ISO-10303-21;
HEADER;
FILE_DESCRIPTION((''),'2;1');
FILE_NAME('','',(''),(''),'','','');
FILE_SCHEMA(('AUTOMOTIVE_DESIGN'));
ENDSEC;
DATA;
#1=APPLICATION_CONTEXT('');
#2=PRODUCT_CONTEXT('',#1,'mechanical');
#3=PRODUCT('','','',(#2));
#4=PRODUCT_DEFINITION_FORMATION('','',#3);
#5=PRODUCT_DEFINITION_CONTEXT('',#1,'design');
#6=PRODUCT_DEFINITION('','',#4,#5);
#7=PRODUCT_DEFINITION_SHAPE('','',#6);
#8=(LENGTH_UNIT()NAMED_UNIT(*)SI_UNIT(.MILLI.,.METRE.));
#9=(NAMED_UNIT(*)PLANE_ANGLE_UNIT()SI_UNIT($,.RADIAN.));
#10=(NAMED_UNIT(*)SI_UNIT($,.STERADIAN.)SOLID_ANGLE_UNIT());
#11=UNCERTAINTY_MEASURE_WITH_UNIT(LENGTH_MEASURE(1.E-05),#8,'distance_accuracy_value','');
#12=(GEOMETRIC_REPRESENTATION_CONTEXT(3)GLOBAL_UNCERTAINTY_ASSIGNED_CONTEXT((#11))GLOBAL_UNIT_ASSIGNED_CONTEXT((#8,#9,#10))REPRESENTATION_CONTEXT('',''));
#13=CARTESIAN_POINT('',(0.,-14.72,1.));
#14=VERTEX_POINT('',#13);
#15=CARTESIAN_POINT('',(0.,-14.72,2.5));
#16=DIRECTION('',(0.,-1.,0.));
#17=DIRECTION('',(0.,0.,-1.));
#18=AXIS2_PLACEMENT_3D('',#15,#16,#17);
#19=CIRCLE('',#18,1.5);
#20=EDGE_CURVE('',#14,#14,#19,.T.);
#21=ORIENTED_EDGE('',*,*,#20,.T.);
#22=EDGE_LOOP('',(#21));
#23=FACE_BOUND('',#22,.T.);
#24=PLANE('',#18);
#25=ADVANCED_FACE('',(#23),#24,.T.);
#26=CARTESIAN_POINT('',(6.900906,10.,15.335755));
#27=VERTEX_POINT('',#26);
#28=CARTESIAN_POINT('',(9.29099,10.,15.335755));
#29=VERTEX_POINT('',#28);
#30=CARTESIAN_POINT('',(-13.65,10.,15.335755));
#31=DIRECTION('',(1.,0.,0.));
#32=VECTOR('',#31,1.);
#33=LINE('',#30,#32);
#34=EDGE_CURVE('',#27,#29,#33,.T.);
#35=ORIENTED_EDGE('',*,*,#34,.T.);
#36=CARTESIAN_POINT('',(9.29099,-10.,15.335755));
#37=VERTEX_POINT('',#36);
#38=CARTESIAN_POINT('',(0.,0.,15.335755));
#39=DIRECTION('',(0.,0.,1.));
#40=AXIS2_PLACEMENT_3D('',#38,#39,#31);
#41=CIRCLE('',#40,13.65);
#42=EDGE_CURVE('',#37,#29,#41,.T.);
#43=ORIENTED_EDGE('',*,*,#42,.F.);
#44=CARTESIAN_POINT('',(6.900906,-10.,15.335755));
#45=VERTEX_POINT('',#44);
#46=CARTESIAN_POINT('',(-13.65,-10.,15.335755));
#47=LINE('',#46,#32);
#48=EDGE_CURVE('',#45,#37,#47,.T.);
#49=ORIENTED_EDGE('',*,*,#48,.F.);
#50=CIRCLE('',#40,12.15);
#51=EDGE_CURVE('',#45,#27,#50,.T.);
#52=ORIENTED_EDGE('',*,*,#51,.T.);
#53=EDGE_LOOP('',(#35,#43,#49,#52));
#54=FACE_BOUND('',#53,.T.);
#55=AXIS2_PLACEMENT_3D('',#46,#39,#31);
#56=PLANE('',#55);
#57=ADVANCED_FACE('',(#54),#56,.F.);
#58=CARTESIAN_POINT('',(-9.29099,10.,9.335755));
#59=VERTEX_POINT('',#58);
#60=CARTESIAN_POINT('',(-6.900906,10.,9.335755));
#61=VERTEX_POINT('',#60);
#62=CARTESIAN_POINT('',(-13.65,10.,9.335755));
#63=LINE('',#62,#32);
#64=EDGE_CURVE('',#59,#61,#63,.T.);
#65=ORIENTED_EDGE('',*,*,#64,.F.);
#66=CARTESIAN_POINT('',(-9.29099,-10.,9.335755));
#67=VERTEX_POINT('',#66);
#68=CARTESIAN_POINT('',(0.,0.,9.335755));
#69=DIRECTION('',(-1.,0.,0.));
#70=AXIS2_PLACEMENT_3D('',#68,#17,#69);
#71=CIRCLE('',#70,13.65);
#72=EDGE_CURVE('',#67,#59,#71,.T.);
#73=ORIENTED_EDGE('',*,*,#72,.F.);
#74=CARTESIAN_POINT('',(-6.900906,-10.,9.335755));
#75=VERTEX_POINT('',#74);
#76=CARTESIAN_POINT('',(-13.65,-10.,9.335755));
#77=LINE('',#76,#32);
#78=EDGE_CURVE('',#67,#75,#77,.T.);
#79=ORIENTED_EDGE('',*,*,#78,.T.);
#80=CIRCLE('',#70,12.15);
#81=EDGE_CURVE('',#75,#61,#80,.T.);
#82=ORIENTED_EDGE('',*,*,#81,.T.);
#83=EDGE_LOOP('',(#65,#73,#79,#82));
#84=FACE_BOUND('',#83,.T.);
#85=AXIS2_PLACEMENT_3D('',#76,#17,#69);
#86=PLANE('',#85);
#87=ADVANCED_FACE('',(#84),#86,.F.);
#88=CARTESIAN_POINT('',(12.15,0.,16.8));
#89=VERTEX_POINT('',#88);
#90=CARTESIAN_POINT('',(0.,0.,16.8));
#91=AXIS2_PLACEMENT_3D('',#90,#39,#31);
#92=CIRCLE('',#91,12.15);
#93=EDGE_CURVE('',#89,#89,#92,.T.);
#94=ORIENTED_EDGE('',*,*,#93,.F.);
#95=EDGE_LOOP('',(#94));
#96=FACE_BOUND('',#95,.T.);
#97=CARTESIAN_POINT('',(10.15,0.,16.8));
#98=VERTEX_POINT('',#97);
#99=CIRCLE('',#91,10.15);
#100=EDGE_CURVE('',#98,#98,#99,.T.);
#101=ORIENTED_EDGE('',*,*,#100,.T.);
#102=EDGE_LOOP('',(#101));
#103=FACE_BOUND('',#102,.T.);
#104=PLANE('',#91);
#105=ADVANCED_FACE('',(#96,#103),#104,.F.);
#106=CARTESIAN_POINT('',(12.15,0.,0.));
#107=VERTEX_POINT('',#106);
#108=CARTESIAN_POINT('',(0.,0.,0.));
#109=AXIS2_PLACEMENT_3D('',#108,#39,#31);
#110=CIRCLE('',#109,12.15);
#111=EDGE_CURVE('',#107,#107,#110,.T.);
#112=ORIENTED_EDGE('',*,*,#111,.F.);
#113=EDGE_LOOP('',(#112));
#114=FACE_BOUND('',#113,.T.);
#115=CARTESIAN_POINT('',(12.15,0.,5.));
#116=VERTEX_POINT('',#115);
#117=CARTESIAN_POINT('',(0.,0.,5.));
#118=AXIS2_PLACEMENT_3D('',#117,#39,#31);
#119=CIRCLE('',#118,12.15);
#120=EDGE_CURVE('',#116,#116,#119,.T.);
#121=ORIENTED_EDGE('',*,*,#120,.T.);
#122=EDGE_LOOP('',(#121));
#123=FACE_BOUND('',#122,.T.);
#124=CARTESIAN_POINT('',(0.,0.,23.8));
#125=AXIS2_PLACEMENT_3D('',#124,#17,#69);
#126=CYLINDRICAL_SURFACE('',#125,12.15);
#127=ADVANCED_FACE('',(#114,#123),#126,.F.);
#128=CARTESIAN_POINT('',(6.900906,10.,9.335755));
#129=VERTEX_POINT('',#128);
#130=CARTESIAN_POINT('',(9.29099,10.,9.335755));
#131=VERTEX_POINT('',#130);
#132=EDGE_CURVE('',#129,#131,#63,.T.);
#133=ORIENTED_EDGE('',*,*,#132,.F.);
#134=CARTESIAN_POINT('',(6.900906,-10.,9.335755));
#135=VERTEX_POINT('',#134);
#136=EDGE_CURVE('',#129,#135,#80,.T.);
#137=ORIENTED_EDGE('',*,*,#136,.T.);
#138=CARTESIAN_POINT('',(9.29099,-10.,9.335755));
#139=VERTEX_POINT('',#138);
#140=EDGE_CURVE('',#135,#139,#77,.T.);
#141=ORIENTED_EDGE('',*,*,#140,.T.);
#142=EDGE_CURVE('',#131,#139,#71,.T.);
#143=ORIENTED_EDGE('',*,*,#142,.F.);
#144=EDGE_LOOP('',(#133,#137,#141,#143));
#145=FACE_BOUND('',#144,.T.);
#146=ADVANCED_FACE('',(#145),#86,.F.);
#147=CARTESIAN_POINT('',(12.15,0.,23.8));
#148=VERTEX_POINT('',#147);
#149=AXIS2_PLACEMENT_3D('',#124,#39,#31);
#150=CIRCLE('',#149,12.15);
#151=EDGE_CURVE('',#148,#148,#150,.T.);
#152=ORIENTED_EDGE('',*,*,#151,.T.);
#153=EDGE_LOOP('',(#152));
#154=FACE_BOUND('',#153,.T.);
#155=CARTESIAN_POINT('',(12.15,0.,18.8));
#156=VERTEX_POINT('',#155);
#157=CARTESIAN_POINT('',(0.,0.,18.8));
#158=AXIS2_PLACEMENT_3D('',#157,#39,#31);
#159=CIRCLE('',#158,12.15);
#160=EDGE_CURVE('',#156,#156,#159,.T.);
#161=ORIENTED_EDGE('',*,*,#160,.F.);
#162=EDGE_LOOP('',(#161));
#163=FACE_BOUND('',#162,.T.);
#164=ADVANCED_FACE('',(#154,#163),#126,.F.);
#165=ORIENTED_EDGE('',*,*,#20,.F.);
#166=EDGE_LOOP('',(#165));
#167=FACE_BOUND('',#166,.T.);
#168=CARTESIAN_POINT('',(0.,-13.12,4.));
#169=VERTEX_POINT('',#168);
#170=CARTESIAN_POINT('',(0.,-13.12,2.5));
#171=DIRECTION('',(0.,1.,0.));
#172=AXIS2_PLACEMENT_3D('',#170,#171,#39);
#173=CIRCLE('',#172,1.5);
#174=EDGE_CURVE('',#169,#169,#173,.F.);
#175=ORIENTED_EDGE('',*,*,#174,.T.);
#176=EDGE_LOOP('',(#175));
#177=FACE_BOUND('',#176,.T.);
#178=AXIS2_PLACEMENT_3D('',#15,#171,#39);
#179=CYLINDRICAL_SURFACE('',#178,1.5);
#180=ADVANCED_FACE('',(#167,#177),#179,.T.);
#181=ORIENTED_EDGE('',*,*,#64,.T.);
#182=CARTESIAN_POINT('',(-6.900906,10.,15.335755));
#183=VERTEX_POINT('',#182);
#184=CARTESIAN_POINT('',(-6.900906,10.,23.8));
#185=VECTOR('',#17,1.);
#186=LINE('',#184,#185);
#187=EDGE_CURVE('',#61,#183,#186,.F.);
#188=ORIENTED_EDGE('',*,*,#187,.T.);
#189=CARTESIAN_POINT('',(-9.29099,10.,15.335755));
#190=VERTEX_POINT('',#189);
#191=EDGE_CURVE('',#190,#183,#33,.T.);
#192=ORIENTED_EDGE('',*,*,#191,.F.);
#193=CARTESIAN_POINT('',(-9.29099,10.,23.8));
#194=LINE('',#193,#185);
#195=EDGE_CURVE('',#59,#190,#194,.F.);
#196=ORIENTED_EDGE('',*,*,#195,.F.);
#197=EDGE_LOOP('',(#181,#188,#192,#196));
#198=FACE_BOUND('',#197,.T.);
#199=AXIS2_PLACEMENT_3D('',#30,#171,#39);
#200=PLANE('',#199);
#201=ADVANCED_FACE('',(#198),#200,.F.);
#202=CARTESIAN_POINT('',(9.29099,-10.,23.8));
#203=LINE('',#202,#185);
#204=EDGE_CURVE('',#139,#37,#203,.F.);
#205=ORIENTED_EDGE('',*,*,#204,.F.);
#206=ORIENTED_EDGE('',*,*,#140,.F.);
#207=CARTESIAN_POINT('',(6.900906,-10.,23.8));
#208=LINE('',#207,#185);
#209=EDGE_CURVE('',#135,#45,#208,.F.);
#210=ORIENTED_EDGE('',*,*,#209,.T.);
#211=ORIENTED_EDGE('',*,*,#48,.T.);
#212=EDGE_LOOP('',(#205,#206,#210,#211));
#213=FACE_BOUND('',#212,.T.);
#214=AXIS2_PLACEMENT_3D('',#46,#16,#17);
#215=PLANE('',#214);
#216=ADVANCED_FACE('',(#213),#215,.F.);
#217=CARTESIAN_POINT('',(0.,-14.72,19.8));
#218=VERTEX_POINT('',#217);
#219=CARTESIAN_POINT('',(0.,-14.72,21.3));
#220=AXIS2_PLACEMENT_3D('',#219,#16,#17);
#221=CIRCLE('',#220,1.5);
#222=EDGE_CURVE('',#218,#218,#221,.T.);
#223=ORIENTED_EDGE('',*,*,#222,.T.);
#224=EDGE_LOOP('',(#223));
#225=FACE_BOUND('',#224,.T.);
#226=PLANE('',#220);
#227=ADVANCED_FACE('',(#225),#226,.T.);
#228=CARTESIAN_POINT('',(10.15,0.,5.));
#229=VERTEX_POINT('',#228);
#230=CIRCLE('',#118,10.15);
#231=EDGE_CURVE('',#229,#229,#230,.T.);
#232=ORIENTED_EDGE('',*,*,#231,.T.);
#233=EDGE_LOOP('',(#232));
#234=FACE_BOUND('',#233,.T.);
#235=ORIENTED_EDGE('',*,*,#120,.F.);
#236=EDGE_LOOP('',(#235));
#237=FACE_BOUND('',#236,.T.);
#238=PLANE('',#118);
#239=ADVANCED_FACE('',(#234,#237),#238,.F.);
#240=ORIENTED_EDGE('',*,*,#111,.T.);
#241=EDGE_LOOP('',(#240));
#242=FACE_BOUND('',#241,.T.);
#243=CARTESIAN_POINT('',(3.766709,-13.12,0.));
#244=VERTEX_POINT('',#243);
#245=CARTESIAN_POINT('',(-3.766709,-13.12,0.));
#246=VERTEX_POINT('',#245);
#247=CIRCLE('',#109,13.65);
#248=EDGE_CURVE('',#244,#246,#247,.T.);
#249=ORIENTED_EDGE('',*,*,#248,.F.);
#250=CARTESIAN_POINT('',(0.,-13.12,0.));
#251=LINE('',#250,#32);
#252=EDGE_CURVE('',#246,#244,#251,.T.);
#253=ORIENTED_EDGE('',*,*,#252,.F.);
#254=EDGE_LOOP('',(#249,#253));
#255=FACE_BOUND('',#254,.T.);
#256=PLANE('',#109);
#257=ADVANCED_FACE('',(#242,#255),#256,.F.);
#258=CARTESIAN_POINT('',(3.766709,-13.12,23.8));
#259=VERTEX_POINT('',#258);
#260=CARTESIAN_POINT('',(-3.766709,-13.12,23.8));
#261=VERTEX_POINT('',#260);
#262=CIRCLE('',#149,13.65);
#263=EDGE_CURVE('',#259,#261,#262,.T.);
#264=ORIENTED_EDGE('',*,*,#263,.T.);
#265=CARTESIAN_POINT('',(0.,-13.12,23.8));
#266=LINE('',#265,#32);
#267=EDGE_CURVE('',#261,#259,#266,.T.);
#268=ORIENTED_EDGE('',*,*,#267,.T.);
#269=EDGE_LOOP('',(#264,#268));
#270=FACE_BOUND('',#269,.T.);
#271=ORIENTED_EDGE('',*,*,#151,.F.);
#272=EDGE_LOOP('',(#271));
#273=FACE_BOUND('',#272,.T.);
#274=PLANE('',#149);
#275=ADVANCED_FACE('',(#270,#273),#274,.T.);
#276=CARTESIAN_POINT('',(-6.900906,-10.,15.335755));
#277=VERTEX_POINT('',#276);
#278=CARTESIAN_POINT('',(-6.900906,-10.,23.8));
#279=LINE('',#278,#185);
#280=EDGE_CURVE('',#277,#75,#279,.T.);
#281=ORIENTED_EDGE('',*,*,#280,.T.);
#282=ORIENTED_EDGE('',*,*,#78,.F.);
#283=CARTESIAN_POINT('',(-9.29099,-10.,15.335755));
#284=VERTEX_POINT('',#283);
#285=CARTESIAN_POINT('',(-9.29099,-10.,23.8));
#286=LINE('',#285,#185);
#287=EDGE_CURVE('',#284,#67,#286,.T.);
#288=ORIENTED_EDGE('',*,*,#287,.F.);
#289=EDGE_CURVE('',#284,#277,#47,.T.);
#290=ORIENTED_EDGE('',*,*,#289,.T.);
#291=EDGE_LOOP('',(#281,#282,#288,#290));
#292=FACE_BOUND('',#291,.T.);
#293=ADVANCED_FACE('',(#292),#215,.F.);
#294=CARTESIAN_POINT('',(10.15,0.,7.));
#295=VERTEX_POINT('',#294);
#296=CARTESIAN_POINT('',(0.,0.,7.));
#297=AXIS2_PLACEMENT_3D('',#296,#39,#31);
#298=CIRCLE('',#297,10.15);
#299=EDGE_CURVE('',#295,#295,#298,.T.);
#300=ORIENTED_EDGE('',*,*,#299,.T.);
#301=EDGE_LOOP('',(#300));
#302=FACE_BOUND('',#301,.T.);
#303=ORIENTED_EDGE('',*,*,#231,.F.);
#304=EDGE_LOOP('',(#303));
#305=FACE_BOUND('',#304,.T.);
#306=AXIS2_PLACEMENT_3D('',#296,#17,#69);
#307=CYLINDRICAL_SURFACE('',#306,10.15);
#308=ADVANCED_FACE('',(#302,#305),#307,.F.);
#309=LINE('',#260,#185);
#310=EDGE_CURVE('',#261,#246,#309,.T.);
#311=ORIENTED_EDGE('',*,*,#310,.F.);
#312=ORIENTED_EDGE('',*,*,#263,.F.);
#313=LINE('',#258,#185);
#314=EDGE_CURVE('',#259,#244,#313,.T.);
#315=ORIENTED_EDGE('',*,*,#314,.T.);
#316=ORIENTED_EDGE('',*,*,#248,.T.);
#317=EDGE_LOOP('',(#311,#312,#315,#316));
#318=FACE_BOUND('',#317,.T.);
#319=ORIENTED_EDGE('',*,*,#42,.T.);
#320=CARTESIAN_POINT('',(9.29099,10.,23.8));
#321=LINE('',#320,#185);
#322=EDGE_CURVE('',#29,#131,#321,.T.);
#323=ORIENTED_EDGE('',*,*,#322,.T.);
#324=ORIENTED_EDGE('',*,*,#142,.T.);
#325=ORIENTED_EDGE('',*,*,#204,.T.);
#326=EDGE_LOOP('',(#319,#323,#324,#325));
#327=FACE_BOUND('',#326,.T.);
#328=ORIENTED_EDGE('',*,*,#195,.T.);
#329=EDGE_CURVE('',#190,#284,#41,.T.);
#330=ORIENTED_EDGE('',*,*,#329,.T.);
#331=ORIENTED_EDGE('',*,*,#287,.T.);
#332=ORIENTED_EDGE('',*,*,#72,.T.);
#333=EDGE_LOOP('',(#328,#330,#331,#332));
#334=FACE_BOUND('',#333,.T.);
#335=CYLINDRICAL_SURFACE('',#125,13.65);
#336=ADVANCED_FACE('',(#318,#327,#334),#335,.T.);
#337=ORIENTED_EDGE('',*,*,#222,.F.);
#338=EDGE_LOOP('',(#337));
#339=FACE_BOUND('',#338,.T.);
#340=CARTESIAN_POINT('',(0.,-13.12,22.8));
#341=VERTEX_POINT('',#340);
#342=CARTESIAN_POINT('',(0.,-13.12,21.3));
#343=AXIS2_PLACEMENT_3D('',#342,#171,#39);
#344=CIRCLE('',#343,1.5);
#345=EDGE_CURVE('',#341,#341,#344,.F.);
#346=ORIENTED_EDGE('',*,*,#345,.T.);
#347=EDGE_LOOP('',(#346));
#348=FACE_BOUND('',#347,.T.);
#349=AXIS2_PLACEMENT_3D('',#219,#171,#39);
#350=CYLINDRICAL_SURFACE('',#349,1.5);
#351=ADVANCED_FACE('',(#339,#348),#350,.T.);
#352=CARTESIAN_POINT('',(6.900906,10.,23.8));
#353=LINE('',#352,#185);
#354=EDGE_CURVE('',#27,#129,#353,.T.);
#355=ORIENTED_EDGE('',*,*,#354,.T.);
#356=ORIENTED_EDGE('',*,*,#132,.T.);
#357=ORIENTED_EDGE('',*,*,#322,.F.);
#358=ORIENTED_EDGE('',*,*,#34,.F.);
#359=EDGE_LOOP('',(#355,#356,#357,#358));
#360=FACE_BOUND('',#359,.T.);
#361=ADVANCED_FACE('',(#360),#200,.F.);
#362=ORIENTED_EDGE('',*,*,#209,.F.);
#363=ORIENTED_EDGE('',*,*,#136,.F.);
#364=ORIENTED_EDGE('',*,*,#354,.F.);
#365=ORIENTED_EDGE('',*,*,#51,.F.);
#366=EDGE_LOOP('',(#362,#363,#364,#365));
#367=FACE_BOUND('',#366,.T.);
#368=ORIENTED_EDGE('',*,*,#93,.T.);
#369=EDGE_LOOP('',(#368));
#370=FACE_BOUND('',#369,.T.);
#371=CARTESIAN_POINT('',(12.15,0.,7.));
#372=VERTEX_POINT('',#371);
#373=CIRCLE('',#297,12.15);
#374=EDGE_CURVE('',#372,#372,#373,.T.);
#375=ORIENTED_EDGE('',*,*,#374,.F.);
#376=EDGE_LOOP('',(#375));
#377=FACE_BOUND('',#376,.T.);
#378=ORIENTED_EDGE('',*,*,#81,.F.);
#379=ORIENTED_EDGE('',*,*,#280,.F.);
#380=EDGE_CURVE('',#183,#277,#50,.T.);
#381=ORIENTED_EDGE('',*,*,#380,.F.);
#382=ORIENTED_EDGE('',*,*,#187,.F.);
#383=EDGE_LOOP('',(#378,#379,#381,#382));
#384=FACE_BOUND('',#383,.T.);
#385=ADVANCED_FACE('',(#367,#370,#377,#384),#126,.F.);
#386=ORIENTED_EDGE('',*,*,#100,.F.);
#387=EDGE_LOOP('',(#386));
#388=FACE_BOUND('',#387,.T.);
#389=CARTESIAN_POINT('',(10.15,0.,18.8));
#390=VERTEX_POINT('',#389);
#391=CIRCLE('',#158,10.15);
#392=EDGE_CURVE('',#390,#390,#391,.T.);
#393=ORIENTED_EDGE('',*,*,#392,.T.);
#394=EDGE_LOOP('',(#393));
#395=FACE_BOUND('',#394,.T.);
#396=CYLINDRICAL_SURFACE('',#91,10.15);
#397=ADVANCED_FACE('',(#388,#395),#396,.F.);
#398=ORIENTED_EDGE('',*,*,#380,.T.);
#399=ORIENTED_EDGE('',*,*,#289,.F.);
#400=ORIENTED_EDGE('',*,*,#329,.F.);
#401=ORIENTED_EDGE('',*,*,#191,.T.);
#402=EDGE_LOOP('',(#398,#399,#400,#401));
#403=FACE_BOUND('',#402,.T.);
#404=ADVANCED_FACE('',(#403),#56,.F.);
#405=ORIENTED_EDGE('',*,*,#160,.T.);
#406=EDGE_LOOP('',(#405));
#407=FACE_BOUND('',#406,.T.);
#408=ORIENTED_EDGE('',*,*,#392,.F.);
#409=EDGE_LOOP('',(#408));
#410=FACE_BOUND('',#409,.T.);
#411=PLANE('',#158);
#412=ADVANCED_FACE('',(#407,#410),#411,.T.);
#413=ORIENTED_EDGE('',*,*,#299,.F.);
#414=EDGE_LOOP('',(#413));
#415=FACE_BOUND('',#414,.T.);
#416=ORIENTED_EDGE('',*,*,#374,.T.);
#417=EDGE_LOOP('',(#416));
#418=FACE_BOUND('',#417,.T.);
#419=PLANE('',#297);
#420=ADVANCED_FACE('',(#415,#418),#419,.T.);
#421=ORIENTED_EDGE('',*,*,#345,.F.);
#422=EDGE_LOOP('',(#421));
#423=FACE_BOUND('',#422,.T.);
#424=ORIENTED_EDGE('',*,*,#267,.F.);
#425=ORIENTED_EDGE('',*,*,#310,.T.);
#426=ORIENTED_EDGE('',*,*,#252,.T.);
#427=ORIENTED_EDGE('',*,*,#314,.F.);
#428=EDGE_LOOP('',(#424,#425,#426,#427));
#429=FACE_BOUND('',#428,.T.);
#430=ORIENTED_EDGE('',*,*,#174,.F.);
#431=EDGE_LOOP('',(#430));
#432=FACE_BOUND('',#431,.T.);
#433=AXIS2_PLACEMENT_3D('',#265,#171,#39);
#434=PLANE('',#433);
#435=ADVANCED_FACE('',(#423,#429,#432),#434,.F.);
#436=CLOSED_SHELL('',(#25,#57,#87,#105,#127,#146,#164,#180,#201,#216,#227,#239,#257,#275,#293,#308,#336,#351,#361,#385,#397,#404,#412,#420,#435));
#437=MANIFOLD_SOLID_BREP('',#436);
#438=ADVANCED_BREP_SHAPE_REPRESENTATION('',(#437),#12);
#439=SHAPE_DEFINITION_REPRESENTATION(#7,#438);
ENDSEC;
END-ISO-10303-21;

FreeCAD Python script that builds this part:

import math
import FreeCAD as App
import Part
import Sketcher


def add_polygon(sketch, points):
    """Adds a closed chain of lines whose ends are joined by coincident constraints."""
    first, n = sketch.GeometryCount, len(points)
    for a, b in zip(points, points[1:] + points[:1]):
        sketch.addGeometry(Part.LineSegment(App.Vector(*a, 0), App.Vector(*b, 0)), False)
    for i in range(n):
        sketch.addConstraint(Sketcher.Constraint("Coincident", first + i, 2, first + (i + 1) % n, 1))

doc = App.newDocument("Part")
body = doc.addObject("PartDesign::Body", "Body")

sketch1 = body.newObject("Sketcher::SketchObject", "Sketch")
sketch1.AttachmentSupport = (doc.getObject("XY_Plane"), [""])
sketch1.MapMode = "FlatFace"
sketch1.addGeometry([
    Part.ArcOfCircle(Part.Circle(App.Vector(0, 0, 0), App.Vector(0, 0, 1), 14), math.radians(0), math.radians(254)),
    Part.LineSegment(App.Vector(-4, -13, 0), App.Vector(4, -13, 0)),
    Part.ArcOfCircle(Part.Circle(App.Vector(0, 0, 0), App.Vector(0, 0, 1), 14), math.radians(-74), math.radians(0)),
    Part.Circle(App.Vector(0, 0, 0), App.Vector(0, 0, 1), 12),
], False)
sketch1.addConstraint([
    Sketcher.Constraint("Coincident", 0, 2, 1, 1),
    Sketcher.Constraint("Coincident", 1, 2, 2, 1),
    Sketcher.Constraint("Tangent", 2, 2, 0, 1),
    Sketcher.Constraint("Horizontal", 1),
    Sketcher.Constraint("Coincident", 0, 3, -1, 1),
    Sketcher.Constraint("Coincident", 3, 3, -1, 1),
    Sketcher.Constraint("Equal", 0, 2),
    Sketcher.Constraint("PointOnObject", 2, 2, -1),
    Sketcher.Constraint("Diameter", 3, 24.3),
    Sketcher.Constraint("Radius", 0, 13.65),
    Sketcher.Constraint("DistanceY", 0, 2, -1, 1, 13.12),
])
pad1 = body.newObject("PartDesign::Pad", "Pad")
pad1.Profile = sketch1
pad1.Length = 23.8

sketch2 = body.newObject("Sketcher::SketchObject", "Sketch001")
sketch2.AttachmentSupport = (doc.getObject("XY_Plane"), [""])
sketch2.MapMode = "FlatFace"
sketch2.AttachmentOffset = App.Placement(App.Vector(0, 0, 16.8), App.Rotation())
sketch2.addGeometry([
    Part.Circle(App.Vector(0, 0, 0), App.Vector(0, 0, 1), 12),
    Part.Circle(App.Vector(0, 0, 0), App.Vector(0, 0, 1), 10),
], False)
sketch2.addConstraint([
    Sketcher.Constraint("Coincident", 0, 3, -1, 1),
    Sketcher.Constraint("Coincident", 1, 3, -1, 1),
    Sketcher.Constraint("Diameter", 0, 24.3),
    Sketcher.Constraint("Diameter", 1, 20.3),
])
pad2 = body.newObject("PartDesign::Pad", "Pad001")
pad2.Profile = sketch2
pad2.Length = 2

sketch3 = body.newObject("Sketcher::SketchObject", "Sketch002")
sketch3.AttachmentSupport = (doc.getObject("XY_Plane"), [""])
sketch3.MapMode = "FlatFace"
sketch3.AttachmentOffset = App.Placement(App.Vector(0, 0, 5), App.Rotation())
sketch3.addGeometry([
    Part.Circle(App.Vector(0, 0, 0), App.Vector(0, 0, 1), 12),
    Part.Circle(App.Vector(0, 0, 0), App.Vector(0, 0, 1), 10),
], False)
sketch3.addConstraint([
    Sketcher.Constraint("Coincident", 0, 3, -1, 1),
    Sketcher.Constraint("Coincident", 1, 3, -1, 1),
    Sketcher.Constraint("Diameter", 0, 24.3),
    Sketcher.Constraint("Diameter", 1, 20.3),
])
pad3 = body.newObject("PartDesign::Pad", "Pad002")
pad3.Profile = sketch3
pad3.Length = 2

sketch4 = body.newObject("Sketcher::SketchObject", "Sketch003")
sketch4.AttachmentSupport = (doc.getObject("YZ_Plane"), [""])
sketch4.MapMode = "FlatFace"
add_polygon(sketch4, [(10, 15), (-10, 15), (-10, 9), (10, 9)])
sketch4.addConstraint([
    Sketcher.Constraint("Horizontal", 0),
    Sketcher.Constraint("Vertical", 1),
    Sketcher.Constraint("Horizontal", 2),
    Sketcher.Constraint("Vertical", 3),
    Sketcher.Constraint("DistanceX", 0, 2, 0, 1, 20.0),
    Sketcher.Constraint("DistanceY", 1, 2, 1, 1, 6.0),
    Sketcher.Constraint("DistanceX", 0, 2, -1, 1, 10.0),
    Sketcher.Constraint("DistanceY", -1, 1, 0, 2, 15.335755),
])
pocket1 = body.newObject("PartDesign::Pocket", "Pocket")
pocket1.Profile = sketch4
pocket1.Type = "ThroughAll"
pocket1.Midplane = True

sketch5 = body.newObject("Sketcher::SketchObject", "Sketch004")
sketch5.AttachmentSupport = (doc.getObject("XZ_Plane"), [""])
sketch5.MapMode = "FlatFace"
sketch5.AttachmentOffset = App.Placement(App.Vector(0, 0, 13.12), App.Rotation())
sketch5.addGeometry([
    Part.Circle(App.Vector(0, 21.3, 0), App.Vector(0, 0, 1), 1.5),
    Part.Circle(App.Vector(0, 2.5, 0), App.Vector(0, 0, 1), 1.5),
], False)
sketch5.addConstraint([
    Sketcher.Constraint("Equal", 0, 1),
    Sketcher.Constraint("PointOnObject", 0, 3, -2),
    Sketcher.Constraint("PointOnObject", 1, 3, -2),
    Sketcher.Constraint("Diameter", 0, 3.0),
    Sketcher.Constraint("DistanceY", -1, 1, 0, 3, 21.3),
    Sketcher.Constraint("DistanceY", -1, 1, 1, 3, 2.5),
])
pad4 = body.newObject("PartDesign::Pad", "Pad003")
pad4.Profile = sketch5
pad4.Length = 1.6

doc.recompute()
